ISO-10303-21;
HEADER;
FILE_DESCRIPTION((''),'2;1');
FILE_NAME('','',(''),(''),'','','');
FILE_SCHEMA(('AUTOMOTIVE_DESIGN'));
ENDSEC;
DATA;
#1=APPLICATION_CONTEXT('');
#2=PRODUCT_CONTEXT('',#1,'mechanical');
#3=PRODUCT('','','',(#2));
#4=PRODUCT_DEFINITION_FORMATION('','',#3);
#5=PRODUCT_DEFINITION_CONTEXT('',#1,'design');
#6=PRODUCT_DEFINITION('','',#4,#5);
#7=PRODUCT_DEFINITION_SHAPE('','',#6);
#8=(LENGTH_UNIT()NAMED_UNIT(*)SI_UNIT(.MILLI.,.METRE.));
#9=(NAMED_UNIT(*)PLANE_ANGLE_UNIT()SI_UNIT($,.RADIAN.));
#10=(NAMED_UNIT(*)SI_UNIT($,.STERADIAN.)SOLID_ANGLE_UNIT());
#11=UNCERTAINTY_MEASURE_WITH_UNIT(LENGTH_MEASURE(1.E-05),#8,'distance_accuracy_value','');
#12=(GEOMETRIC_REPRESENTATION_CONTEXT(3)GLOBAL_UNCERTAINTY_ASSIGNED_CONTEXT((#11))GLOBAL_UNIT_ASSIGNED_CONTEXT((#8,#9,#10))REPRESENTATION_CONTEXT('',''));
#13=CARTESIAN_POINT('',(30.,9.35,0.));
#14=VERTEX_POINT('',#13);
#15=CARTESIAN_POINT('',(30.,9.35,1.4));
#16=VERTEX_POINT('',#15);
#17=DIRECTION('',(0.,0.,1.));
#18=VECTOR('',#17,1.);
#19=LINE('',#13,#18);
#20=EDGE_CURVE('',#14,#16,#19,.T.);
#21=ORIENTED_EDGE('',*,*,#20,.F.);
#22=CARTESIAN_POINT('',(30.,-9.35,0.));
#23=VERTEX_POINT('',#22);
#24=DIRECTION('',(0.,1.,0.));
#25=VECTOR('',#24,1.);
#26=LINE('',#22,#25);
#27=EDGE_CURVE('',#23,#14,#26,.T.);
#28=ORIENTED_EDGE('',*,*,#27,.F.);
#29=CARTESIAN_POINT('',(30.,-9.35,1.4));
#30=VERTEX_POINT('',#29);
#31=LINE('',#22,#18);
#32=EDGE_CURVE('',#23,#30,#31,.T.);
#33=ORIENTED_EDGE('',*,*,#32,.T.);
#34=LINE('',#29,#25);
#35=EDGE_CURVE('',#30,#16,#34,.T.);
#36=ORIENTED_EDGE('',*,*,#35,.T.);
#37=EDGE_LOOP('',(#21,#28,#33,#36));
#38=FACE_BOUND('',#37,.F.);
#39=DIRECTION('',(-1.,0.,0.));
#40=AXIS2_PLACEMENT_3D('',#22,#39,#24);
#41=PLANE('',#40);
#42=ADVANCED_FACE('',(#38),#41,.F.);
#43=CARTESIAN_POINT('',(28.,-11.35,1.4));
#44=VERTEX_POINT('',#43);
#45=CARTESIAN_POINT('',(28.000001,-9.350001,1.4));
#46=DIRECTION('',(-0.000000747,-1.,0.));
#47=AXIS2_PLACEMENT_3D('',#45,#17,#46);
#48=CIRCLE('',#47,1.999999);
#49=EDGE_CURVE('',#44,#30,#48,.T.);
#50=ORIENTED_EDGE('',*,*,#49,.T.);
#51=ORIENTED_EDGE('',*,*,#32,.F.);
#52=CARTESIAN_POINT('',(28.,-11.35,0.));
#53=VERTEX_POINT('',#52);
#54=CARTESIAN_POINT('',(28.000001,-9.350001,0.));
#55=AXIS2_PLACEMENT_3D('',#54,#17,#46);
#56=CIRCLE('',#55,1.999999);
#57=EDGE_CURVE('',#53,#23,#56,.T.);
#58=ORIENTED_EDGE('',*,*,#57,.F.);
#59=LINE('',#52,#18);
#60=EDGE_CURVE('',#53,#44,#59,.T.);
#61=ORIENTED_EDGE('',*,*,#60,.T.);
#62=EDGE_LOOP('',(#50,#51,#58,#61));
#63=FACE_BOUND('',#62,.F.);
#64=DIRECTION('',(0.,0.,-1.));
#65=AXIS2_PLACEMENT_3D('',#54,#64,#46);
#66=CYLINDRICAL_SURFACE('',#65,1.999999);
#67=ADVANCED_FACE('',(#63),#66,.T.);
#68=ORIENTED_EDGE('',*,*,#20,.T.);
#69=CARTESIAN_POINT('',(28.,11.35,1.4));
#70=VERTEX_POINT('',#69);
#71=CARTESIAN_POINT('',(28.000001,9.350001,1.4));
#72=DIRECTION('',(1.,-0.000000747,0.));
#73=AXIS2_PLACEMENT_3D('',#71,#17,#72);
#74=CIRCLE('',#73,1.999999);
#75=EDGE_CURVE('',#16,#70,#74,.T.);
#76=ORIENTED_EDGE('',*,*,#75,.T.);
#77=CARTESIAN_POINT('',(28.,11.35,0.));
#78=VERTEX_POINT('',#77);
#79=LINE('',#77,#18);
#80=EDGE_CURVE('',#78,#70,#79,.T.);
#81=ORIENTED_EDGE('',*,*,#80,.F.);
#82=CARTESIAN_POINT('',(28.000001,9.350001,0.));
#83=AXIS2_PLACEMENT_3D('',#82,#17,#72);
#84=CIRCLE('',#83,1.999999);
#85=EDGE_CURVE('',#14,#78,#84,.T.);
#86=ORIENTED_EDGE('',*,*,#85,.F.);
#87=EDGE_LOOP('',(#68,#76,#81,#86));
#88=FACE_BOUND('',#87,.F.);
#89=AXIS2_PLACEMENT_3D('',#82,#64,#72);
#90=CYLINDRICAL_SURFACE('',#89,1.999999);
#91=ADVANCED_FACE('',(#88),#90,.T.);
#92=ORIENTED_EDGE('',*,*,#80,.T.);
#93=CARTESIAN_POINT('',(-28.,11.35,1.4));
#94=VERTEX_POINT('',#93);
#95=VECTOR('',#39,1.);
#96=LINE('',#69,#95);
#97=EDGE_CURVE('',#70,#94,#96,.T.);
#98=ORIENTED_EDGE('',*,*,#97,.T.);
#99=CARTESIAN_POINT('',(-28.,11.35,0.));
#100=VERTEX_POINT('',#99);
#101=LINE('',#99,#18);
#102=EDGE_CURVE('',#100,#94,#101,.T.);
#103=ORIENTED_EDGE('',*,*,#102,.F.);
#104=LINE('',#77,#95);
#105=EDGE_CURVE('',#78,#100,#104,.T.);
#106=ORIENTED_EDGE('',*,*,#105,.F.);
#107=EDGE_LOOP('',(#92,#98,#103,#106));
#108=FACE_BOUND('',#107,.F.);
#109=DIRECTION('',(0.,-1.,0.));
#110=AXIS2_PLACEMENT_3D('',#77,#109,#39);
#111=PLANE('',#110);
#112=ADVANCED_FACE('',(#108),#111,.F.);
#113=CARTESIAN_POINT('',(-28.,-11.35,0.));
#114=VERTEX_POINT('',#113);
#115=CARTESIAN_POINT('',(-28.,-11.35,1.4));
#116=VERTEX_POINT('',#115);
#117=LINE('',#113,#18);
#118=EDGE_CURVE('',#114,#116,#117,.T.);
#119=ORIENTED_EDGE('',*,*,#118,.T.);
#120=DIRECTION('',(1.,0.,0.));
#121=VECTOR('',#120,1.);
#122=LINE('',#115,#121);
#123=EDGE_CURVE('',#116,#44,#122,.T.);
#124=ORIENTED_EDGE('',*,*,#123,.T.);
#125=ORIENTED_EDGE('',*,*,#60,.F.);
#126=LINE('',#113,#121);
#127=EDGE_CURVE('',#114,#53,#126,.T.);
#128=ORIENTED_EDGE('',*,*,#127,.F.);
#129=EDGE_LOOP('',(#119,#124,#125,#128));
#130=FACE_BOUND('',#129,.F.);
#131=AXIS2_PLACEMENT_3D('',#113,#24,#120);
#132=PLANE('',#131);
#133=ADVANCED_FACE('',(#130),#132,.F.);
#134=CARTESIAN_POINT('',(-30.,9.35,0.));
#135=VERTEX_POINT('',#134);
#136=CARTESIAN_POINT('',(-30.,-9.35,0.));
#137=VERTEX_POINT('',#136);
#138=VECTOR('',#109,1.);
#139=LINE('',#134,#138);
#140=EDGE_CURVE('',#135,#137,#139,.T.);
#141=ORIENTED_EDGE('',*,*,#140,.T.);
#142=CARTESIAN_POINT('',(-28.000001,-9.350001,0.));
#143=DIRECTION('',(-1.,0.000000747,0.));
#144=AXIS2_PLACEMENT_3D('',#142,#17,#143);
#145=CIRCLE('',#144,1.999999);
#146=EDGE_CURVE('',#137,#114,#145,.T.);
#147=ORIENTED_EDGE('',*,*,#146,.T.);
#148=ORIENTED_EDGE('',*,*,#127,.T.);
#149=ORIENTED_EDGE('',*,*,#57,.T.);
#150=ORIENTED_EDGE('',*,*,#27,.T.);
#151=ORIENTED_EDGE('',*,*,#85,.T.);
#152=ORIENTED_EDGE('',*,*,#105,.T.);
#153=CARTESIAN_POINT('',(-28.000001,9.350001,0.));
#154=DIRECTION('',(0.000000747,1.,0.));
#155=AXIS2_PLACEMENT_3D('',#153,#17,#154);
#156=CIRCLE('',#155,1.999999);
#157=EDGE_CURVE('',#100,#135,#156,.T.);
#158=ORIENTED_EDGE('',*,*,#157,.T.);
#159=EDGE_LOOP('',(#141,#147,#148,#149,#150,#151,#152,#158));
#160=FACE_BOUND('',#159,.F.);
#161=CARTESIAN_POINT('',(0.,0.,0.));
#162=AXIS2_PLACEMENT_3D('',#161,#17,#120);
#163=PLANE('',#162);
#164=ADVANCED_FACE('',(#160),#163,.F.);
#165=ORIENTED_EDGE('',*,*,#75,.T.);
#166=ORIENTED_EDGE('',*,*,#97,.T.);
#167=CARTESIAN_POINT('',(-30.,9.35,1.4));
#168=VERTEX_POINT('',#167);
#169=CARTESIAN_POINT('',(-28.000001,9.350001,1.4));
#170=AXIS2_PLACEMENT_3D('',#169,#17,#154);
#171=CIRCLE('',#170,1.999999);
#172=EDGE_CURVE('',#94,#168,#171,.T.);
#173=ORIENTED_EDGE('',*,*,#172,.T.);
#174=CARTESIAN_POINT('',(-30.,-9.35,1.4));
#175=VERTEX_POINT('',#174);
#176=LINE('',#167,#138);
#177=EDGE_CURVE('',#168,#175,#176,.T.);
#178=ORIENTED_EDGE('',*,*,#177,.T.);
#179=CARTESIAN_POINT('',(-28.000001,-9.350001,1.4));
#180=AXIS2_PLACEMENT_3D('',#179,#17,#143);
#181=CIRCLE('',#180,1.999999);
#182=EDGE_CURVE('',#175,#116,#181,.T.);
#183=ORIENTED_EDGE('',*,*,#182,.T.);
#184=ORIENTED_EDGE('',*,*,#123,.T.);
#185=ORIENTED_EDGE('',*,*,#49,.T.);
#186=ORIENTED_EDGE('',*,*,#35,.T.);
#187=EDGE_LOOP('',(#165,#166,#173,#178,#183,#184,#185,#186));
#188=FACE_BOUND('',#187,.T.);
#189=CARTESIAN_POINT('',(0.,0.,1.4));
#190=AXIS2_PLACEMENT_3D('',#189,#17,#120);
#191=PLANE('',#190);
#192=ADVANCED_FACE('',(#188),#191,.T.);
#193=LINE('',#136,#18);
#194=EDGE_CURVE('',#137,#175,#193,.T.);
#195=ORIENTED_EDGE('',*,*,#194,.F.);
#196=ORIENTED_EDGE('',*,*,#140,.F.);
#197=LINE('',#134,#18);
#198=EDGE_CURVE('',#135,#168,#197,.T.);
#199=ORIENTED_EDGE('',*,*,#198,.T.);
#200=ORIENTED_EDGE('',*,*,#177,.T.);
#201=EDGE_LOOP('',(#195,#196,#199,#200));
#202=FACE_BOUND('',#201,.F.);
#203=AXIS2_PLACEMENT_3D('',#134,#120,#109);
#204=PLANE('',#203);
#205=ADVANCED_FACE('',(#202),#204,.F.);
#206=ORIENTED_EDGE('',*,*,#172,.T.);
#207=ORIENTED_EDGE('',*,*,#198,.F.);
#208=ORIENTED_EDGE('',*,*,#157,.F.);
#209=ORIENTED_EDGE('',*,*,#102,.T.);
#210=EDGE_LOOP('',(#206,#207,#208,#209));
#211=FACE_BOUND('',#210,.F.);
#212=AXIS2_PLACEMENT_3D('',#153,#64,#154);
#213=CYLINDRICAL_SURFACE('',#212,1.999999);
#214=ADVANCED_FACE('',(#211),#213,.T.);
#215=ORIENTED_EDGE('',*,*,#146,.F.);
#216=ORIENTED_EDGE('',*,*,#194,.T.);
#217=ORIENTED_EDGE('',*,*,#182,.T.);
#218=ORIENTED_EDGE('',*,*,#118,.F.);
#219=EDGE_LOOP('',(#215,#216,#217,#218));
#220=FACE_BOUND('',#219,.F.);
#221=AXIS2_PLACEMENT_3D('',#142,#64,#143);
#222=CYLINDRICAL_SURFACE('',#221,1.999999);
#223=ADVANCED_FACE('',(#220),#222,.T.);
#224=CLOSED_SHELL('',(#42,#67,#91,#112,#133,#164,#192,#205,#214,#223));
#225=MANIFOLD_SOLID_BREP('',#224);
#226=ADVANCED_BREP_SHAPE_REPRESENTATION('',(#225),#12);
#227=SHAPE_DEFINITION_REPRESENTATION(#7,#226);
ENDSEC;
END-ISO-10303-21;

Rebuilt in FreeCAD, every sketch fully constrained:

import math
import FreeCAD as App
import Part
import Sketcher
from FreeCAD import Vector
Q = App.Units.Quantity

doc = App.newDocument("Part")
body = doc.addObject("PartDesign::Body", "Body")

# Sketch on XY plane
sketch1 = body.newObject("Sketcher::SketchObject", "Sketch")
sketch1.AttachmentSupport = (doc.getObject("XY_Plane"), [""])
sketch1.MapMode = "FlatFace"
sketch1.addGeometry(Part.LineSegment(Vector(-30, 9.3, 0), Vector(-30, -9.3, 0)), False)
sketch1.addGeometry(Part.ArcOfCircle(Part.Circle(Vector(-28, -9.4, 0), Vector(0, 0, 1), 2), math.radians(180), math.radians(270)), False)
sketch1.addGeometry(Part.LineSegment(Vector(-28, -11.3, 0), Vector(28, -11.3, 0)), False)
sketch1.addGeometry(Part.ArcOfCircle(Part.Circle(Vector(28, -9.4, 0), Vector(0, 0, 1), 2), math.radians(-90), math.radians(0)), False)
sketch1.addGeometry(Part.LineSegment(Vector(30, -9.3, 0), Vector(30, 9.3, 0)), False)
sketch1.addGeometry(Part.ArcOfCircle(Part.Circle(Vector(28, 9.4, 0), Vector(0, 0, 1), 2), math.radians(0), math.radians(90)), False)
sketch1.addGeometry(Part.LineSegment(Vector(28, 11.3, 0), Vector(-28, 11.3, 0)), False)
sketch1.addGeometry(Part.ArcOfCircle(Part.Circle(Vector(-28, 9.4, 0), Vector(0, 0, 1), 2), math.radians(90), math.radians(180)), False)
sketch1.addConstraint(Sketcher.Constraint("Tangent", 0, 2, 1, 1))
sketch1.addConstraint(Sketcher.Constraint("Tangent", 1, 2, 2, 1))
sketch1.addConstraint(Sketcher.Constraint("Tangent", 2, 2, 3, 1))
sketch1.addConstraint(Sketcher.Constraint("Tangent", 3, 2, 4, 1))
sketch1.addConstraint(Sketcher.Constraint("Tangent", 4, 2, 5, 1))
sketch1.addConstraint(Sketcher.Constraint("Tangent", 5, 2, 6, 1))
sketch1.addConstraint(Sketcher.Constraint("Tangent", 6, 2, 7, 1))
sketch1.addConstraint(Sketcher.Constraint("Tangent", 7, 2, 0, 1))
sketch1.addConstraint(Sketcher.Constraint("Vertical", 0))
sketch1.addConstraint(Sketcher.Constraint("Horizontal", 2))
sketch1.addConstraint(Sketcher.Constraint("Vertical", 4))
sketch1.addConstraint(Sketcher.Constraint("Horizontal", 6))
sketch1.addConstraint(Sketcher.Constraint("Equal", 1, 3))
sketch1.addConstraint(Sketcher.Constraint("Equal", 3, 5))
sketch1.addConstraint(Sketcher.Constraint("Equal", 5, 7))
sketch1.addConstraint(Sketcher.Constraint("Symmetric", 1, 3, 5, 3, -1, 1))
sketch1.addConstraint(Sketcher.Constraint("Radius", 1, Q("1.999999 mm")))
sketch1.addConstraint(Sketcher.Constraint("DistanceX", 2, 1, 2, 2, Q("56 mm")))
sketch1.addConstraint(Sketcher.Constraint("DistanceY", 0, 2, 0, 1, Q("18.7 mm")))
pad1 = body.newObject("PartDesign::Pad", "Pad")
pad1.Profile = sketch1
pad1.Length = 1.4

doc.recompute()
